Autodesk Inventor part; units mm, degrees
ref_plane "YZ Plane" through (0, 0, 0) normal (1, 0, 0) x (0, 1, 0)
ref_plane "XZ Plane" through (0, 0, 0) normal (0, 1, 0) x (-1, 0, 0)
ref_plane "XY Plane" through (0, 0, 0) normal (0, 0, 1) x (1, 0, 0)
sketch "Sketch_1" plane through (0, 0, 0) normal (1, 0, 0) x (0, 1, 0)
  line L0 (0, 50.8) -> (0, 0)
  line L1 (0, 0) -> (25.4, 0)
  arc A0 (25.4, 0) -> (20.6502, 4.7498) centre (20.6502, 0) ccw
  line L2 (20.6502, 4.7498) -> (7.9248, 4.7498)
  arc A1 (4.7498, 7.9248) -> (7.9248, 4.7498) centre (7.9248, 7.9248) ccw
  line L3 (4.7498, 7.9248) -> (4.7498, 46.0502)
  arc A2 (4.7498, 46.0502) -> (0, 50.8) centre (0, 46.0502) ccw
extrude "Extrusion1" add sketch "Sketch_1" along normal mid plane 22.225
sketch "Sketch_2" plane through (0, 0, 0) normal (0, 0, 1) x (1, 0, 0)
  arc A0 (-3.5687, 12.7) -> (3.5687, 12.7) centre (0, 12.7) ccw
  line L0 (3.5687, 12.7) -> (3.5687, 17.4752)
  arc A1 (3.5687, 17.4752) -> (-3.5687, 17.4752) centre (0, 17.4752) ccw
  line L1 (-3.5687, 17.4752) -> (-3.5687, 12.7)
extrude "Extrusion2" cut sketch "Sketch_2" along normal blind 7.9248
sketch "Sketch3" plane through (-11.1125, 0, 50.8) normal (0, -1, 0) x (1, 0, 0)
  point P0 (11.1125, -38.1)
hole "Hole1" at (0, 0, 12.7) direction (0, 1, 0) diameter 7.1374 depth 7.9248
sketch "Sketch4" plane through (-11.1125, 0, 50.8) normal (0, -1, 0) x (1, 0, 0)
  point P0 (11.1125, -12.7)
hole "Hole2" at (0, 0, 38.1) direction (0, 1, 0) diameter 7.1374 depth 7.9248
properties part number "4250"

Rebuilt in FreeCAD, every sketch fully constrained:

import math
import FreeCAD as App
import Part
import Sketcher
Q = App.Units.Quantity

doc = App.newDocument("Part")
body = doc.addObject("PartDesign::Body", "Body")

sketch1 = doc.addObject("Sketcher::SketchObject", "Sketch")
body.addObject(sketch1)
sketch1.AttachmentSupport = (doc.YZ_Plane, [""])
sketch1.MapMode = "FlatFace"
sketch1.addGeometry(Part.ArcOfCircle(Part.Circle(App.Vector(0, 46.1, 0), App.Vector(0, 0, 1), 4.7), math.radians(0), math.radians(90)), False)
sketch1.addGeometry(Part.LineSegment(App.Vector(0, 50.8, 0), App.Vector(0, 0, 0)), False)
sketch1.addGeometry(Part.LineSegment(App.Vector(0, 0, 0), App.Vector(25.4, 0, 0)), False)
sketch1.addGeometry(Part.ArcOfCircle(Part.Circle(App.Vector(20.7, 0, 0), App.Vector(0, 0, 1), 4.7), math.radians(0), math.radians(90)), False)
sketch1.addGeometry(Part.LineSegment(App.Vector(20.7, 4.7, 0), App.Vector(7.9, 4.7, 0)), False)
sketch1.addGeometry(Part.ArcOfCircle(Part.Circle(App.Vector(7.9, 7.9, 0), App.Vector(0, 0, 1), 3.2), math.radians(180), math.radians(270)), False)
sketch1.addGeometry(Part.LineSegment(App.Vector(4.7, 7.9, 0), App.Vector(4.7, 46.1, 0)), False)
sketch1.addConstraint(Sketcher.Constraint("Coincident", 0, 2, 1, 1))
sketch1.addConstraint(Sketcher.Constraint("Coincident", 1, 2, 2, 1))
sketch1.addConstraint(Sketcher.Constraint("Coincident", 2, 2, 3, 1))
sketch1.addConstraint(Sketcher.Constraint("Tangent", 3, 2, 4, 1))
sketch1.addConstraint(Sketcher.Constraint("Tangent", 4, 2, 5, 2))
sketch1.addConstraint(Sketcher.Constraint("Tangent", 5, 1, 6, 1))
sketch1.addConstraint(Sketcher.Constraint("Tangent", 6, 2, 0, 1))
sketch1.addConstraint(Sketcher.Constraint("Vertical", 1))
sketch1.addConstraint(Sketcher.Constraint("Horizontal", 2))
sketch1.addConstraint(Sketcher.Constraint("Horizontal", 4))
sketch1.addConstraint(Sketcher.Constraint("Vertical", 6))
sketch1.addConstraint(Sketcher.Constraint("Coincident", 1, 2, -1, 1))
sketch1.addConstraint(Sketcher.Constraint("Equal", 0, 3))
sketch1.addConstraint(Sketcher.Constraint("PointOnObject", 0, 3, -2))
sketch1.addConstraint(Sketcher.Constraint("PointOnObject", 3, 3, -1))
sketch1.addConstraint(Sketcher.Constraint("DistanceX", 2, 1, 2, 2, Q("1 in")))
sketch1.addConstraint(Sketcher.Constraint("DistanceY", 1, 2, 1, 1, Q("2 in")))
sketch1.addConstraint(Sketcher.Constraint("Radius", 0, Q("0.187 in")))
sketch1.addConstraint(Sketcher.Constraint("Radius", 5, Q("0.125 in")))
pad1 = doc.addObject("PartDesign::Pad", "Pad")
body.addObject(pad1)
pad1.Profile = sketch1
pad1.Length = Q("0.875 in")
pad1.Midplane = True

sketch2 = doc.addObject("Sketcher::SketchObject", "Sketch001")
body.addObject(sketch2)
sketch2.AttachmentSupport = (doc.XY_Plane, [""])
sketch2.MapMode = "FlatFace"
sketch2.addGeometry(Part.LineSegment(App.Vector(-3.6, 17.5, 0), App.Vector(-3.6, 12.7, 0)), False)
sketch2.addGeometry(Part.ArcOfCircle(Part.Circle(App.Vector(0, 12.7, 0), App.Vector(0, 0, 1), 3.6), math.radians(180), math.radians(360)), False)
sketch2.addGeometry(Part.LineSegment(App.Vector(3.6, 12.7, 0), App.Vector(3.6, 17.5, 0)), False)
sketch2.addGeometry(Part.ArcOfCircle(Part.Circle(App.Vector(0, 17.5, 0), App.Vector(0, 0, 1), 3.6), math.radians(0), math.radians(180)), False)
sketch2.addConstraint(Sketcher.Constraint("Tangent", 0, 2, 1, 1))
sketch2.addConstraint(Sketcher.Constraint("Tangent", 1, 2, 2, 1))
sketch2.addConstraint(Sketcher.Constraint("Tangent", 2, 2, 3, 1))
sketch2.addConstraint(Sketcher.Constraint("Tangent", 3, 2, 0, 1))
sketch2.addConstraint(Sketcher.Constraint("Vertical", 0))
sketch2.addConstraint(Sketcher.Constraint("Vertical", 2))
sketch2.addConstraint(Sketcher.Constraint("PointOnObject", 1, 3, -2))
sketch2.addConstraint(Sketcher.Constraint("DistanceY", -1, 1, 1, 3, Q("0.5 in")))
sketch2.addConstraint(Sketcher.Constraint("Radius", 1, Q("0.1405 in")))
sketch2.addConstraint(Sketcher.Constraint("DistanceY", 0, 2, 0, 1, Q("0.188 in")))
pocket1 = doc.addObject("PartDesign::Pocket", "Pocket")
body.addObject(pocket1)
pocket1.Profile = sketch2
pocket1.Length = Q("0.312 in")
pocket1.Reversed = True

sketch3 = doc.addObject("Sketcher::SketchObject", "Sketch002")
body.addObject(sketch3)
sketch3.AttachmentSupport = (doc.XZ_Plane, [""])
sketch3.MapMode = "FlatFace"
sketch3.addGeometry(Part.Circle(App.Vector(0, 12.7, 0), App.Vector(0, 0, 1), 3.6), False)
sketch3.addConstraint(Sketcher.Constraint("PointOnObject", 0, 3, -2))
sketch3.addConstraint(Sketcher.Constraint("Diameter", 0, Q("0.281 in")))
sketch3.addConstraint(Sketcher.Constraint("DistanceY", -1, 1, 0, 3, Q("0.5 in")))
doc.recompute()
hole = doc.addObject("PartDesign::Hole", "Hole")
body.addObject(hole)
hole.Profile = sketch3
hole.ThreadType = "None"
hole.Diameter = Q("0.281 in")
hole.DepthType = "Dimension"
hole.Depth = Q("0.312 in")
hole.DrillPoint = "Flat"

sketch4 = doc.addObject("Sketcher::SketchObject", "Sketch003")
body.addObject(sketch4)
sketch4.AttachmentSupport = (doc.XZ_Plane, [""])
sketch4.MapMode = "FlatFace"
sketch4.addGeometry(Part.Circle(App.Vector(0, 38.1, 0), App.Vector(0, 0, 1), 3.6), False)
sketch4.addConstraint(Sketcher.Constraint("PointOnObject", 0, 3, -2))
sketch4.addConstraint(Sketcher.Constraint("Diameter", 0, Q("0.281 in")))
sketch4.addConstraint(Sketcher.Constraint("DistanceY", -1, 1, 0, 3, Q("1.5 in")))
doc.recompute()
hole2 = doc.addObject("PartDesign::Hole", "Hole001")
body.addObject(hole2)
hole2.Profile = sketch4
hole2.ThreadType = "None"
hole2.Diameter = Q("0.281 in")
hole2.DepthType = "Dimension"
hole2.Depth = Q("0.312 in")
hole2.DrillPoint = "Flat"

doc.recompute()
